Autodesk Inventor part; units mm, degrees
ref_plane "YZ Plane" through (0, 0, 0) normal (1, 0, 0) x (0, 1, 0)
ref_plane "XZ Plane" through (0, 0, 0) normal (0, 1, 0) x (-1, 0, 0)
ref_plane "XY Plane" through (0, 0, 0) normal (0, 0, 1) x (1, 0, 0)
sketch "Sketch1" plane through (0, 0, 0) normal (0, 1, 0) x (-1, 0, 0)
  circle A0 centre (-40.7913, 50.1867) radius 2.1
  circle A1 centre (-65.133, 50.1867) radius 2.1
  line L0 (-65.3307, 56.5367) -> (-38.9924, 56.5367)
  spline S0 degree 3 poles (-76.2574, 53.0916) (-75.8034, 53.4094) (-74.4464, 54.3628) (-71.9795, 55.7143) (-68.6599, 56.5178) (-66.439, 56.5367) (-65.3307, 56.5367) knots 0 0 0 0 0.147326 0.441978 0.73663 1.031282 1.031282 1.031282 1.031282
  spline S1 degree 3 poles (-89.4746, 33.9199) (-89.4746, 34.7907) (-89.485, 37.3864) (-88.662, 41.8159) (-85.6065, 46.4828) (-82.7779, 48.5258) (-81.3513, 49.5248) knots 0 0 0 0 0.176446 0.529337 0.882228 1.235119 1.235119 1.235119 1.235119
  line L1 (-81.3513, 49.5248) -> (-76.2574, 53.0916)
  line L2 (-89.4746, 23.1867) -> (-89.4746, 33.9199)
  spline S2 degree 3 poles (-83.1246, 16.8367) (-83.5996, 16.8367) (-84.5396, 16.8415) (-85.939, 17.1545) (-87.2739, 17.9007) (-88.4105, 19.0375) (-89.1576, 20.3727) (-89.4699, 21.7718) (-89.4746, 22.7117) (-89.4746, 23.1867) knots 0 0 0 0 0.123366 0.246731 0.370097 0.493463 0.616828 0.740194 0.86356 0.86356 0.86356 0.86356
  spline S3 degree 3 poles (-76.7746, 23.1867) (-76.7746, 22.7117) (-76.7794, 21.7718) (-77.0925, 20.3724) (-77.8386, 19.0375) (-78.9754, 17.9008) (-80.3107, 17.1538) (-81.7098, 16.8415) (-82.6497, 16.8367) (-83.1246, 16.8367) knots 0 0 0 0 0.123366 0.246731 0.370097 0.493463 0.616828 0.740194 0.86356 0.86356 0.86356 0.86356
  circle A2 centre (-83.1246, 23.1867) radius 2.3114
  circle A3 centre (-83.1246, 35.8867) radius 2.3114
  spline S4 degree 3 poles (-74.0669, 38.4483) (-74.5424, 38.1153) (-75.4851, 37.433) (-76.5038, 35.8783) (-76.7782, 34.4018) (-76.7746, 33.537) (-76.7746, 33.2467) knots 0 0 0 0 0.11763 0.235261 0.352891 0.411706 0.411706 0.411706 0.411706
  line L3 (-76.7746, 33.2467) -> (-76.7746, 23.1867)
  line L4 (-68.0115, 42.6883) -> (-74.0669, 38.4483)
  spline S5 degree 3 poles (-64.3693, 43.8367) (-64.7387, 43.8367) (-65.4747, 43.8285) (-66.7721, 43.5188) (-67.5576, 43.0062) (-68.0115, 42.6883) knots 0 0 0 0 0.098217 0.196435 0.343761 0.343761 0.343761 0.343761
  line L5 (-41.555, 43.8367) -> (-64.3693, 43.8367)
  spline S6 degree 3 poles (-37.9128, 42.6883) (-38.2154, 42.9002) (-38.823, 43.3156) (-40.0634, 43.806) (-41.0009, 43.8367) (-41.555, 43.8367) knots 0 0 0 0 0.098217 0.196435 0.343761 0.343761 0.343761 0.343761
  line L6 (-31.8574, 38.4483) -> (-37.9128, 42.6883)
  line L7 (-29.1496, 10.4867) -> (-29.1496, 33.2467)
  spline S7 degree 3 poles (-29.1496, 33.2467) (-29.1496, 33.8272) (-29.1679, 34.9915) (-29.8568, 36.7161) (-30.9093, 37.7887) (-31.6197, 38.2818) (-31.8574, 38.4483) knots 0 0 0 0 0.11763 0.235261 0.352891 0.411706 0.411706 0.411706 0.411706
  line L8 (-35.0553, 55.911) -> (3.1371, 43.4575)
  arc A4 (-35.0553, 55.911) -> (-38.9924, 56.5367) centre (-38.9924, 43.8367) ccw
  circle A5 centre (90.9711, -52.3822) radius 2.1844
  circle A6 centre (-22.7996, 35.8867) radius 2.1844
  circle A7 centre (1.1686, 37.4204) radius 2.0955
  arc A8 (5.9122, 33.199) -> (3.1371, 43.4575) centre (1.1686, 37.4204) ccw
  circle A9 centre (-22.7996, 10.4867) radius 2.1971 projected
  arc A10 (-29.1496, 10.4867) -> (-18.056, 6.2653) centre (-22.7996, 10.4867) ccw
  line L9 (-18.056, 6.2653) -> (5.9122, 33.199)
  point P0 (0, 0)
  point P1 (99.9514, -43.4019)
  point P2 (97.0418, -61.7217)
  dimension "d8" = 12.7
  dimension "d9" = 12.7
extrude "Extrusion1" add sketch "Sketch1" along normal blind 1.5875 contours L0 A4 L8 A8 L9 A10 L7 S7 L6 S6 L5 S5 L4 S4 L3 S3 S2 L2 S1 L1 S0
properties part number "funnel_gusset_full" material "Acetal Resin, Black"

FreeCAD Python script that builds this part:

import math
import FreeCAD as App
import Part
import Sketcher
from FreeCAD import Vector
Q = App.Units.Quantity

doc = App.newDocument("Part")
body = doc.addObject("PartDesign::Body", "Body")

# Sketch on XZ plane
sketch1 = body.newObject("Sketcher::SketchObject", "Sketch")
sketch1.AttachmentSupport = (doc.getObject("XZ_Plane"), [""])
sketch1.MapMode = "FlatFace"
sketch1.addGeometry(Part.LineSegment(Vector(38.9924, 56.5367, 0), Vector(65.3307, 56.5367, 0)), False)
sketch1.addGeometry(Part.BSplineCurve([Vector(76.2574, 53.0916, 0), Vector(75.8034, 53.4094, 0), Vector(74.4464, 54.3628, 0), Vector(71.9795, 55.7143, 0), Vector(68.6599, 56.5178, 0), Vector(66.439, 56.5367, 0), Vector(65.3307, 56.5367, 0)], [4, 1, 1, 1, 4], [0, 0.147326, 0.441978, 0.73663, 1.031282], False, 3, [1, 1, 1, 1, 1, 1, 1], False), False)
sketch1.addGeometry(Part.LineSegment(Vector(76.2574, 53.0916, 0), Vector(81.3513, 49.5248, 0)), False)
sketch1.addGeometry(Part.BSplineCurve([Vector(89.4746, 33.9199, 0), Vector(89.4746, 34.7907, 0), Vector(89.485, 37.3864, 0), Vector(88.662, 41.8159, 0), Vector(85.6065, 46.4828, 0), Vector(82.7779, 48.5258, 0), Vector(81.3513, 49.5248, 0)], [4, 1, 1, 1, 4], [0, 0.176446, 0.529337, 0.882228, 1.235119], False, 3, [1, 1, 1, 1, 1, 1, 1], False), False)
sketch1.addGeometry(Part.LineSegment(Vector(89.4746, 33.9199, 0), Vector(89.4746, 23.1867, 0)), False)
sketch1.addGeometry(Part.BSplineCurve([Vector(83.1246, 16.8367, 0), Vector(83.5996, 16.8367, 0), Vector(84.5396, 16.8415, 0), Vector(85.939, 17.1545, 0), Vector(87.2739, 17.9007, 0), Vector(88.4105, 19.0375, 0), Vector(89.1576, 20.3727, 0), Vector(89.4699, 21.7718, 0), Vector(89.4746, 22.7117, 0), Vector(89.4746, 23.1867, 0)], [4, 1, 1, 1, 1, 1, 1, 4], [0, 0.123366, 0.246731, 0.370097, 0.493463, 0.616828, 0.740194, 0.86356], False, 3, [1, 1, 1, 1, 1, 1, 1, 1, 1, 1], False), False)
sketch1.addGeometry(Part.BSplineCurve([Vector(76.7746, 23.1867, 0), Vector(76.7746, 22.7117, 0), Vector(76.7794, 21.7718, 0), Vector(77.0925, 20.3724, 0), Vector(77.8386, 19.0375, 0), Vector(78.9754, 17.9008, 0), Vector(80.3107, 17.1538, 0), Vector(81.7098, 16.8415, 0), Vector(82.6497, 16.8367, 0), Vector(83.1246, 16.8367, 0)], [4, 1, 1, 1, 1, 1, 1, 4], [0, 0.123366, 0.246731, 0.370097, 0.493463, 0.616828, 0.740194, 0.86356], False, 3, [1, 1, 1, 1, 1, 1, 1, 1, 1, 1], False), False)
sketch1.addGeometry(Part.LineSegment(Vector(76.7746, 23.1867, 0), Vector(76.7746, 33.2467, 0)), False)
sketch1.addGeometry(Part.BSplineCurve([Vector(74.0669, 38.4483, 0), Vector(74.5424, 38.1153, 0), Vector(75.4851, 37.433, 0), Vector(76.5038, 35.8783, 0), Vector(76.7782, 34.4018, 0), Vector(76.7746, 33.537, 0), Vector(76.7746, 33.2467, 0)], [4, 1, 1, 1, 4], [0, 0.11763, 0.235261, 0.352891, 0.411706], False, 3, [1, 1, 1, 1, 1, 1, 1], False), False)
sketch1.addGeometry(Part.LineSegment(Vector(74.0669, 38.4483, 0), Vector(68.0115, 42.6883, 0)), False)
sketch1.addGeometry(Part.BSplineCurve([Vector(64.3693, 43.8367, 0), Vector(64.7387, 43.8367, 0), Vector(65.4747, 43.8285, 0), Vector(66.7721, 43.5188, 0), Vector(67.5576, 43.0062, 0), Vector(68.0115, 42.6883, 0)], [4, 1, 1, 4], [0, 0.098217, 0.196435, 0.343761], False, 3, [1, 1, 1, 1, 1, 1], False), False)
sketch1.addGeometry(Part.LineSegment(Vector(64.3693, 43.8367, 0), Vector(41.555, 43.8367, 0)), False)
sketch1.addGeometry(Part.BSplineCurve([Vector(37.9128, 42.6883, 0), Vector(38.2154, 42.9002, 0), Vector(38.823, 43.3156, 0), Vector(40.0634, 43.806, 0), Vector(41.0009, 43.8367, 0), Vector(41.555, 43.8367, 0)], [4, 1, 1, 4], [0, 0.098217, 0.196435, 0.343761], False, 3, [1, 1, 1, 1, 1, 1], False), False)
sketch1.addGeometry(Part.LineSegment(Vector(37.9128, 42.6883, 0), Vector(31.8574, 38.4483, 0)), False)
sketch1.addGeometry(Part.BSplineCurve([Vector(29.1496, 33.2467, 0), Vector(29.1496, 33.8272, 0), Vector(29.1679, 34.9915, 0), Vector(29.8568, 36.7161, 0), Vector(30.9093, 37.7887, 0), Vector(31.6197, 38.2818, 0), Vector(31.8574, 38.4483, 0)], [4, 1, 1, 1, 4], [0, 0.11763, 0.235261, 0.352891, 0.411706], False, 3, [1, 1, 1, 1, 1, 1, 1], False), False)
sketch1.addGeometry(Part.LineSegment(Vector(29.1496, 33.2467, 0), Vector(29.1496, 10.4867, 0)), False)
sketch1.addGeometry(Part.ArcOfCircle(Part.Circle(Vector(22.7996, 10.4867, 0), Vector(0, 0, 1), 6.35), math.radians(-138.33364), math.radians(0)), False)
sketch1.addGeometry(Part.LineSegment(Vector(18.056, 6.2653, 0), Vector(-5.9122, 33.199, 0)), False)
sketch1.addGeometry(Part.ArcOfCircle(Part.Circle(Vector(-1.1686, 37.4204, 0), Vector(0, 0, 1), 6.349957), math.radians(108.059446), math.radians(221.66636)), False)
sketch1.addGeometry(Part.LineSegment(Vector(-3.1371, 43.4575, 0), Vector(35.0553, 55.911, 0)), False)
sketch1.addGeometry(Part.ArcOfCircle(Part.Circle(Vector(38.9924, 43.8367, 0), Vector(0, 0, 1), 12.699979), math.radians(90), math.radians(108.059735)), False)
sketch1.addGeometry(Part.Circle(Vector(83.1246, 23.1867, 0), Vector(0, 0, 1), 2.3114), False)
sketch1.addGeometry(Part.Circle(Vector(22.7996, 10.4867, 0), Vector(0, 0, 1), 2.1971), False)
sketch1.addGeometry(Part.Circle(Vector(83.1246, 35.8867, 0), Vector(0, 0, 1), 2.3114), False)
sketch1.addGeometry(Part.Circle(Vector(65.133, 50.1867, 0), Vector(0, 0, 1), 2.1), False)
sketch1.addGeometry(Part.Circle(Vector(22.7996, 35.8867, 0), Vector(0, 0, 1), 2.1844), False)
sketch1.addGeometry(Part.Circle(Vector(-1.1686, 37.4204, 0), Vector(0, 0, 1), 2.0955), False)
sketch1.addGeometry(Part.Circle(Vector(40.7913, 50.1867, 0), Vector(0, 0, 1), 2.1), False)
sketch1.addConstraint(Sketcher.Constraint("Block", 1))
sketch1.addConstraint(Sketcher.Constraint("Block", 3))
sketch1.addConstraint(Sketcher.Constraint("Block", 5))
sketch1.addConstraint(Sketcher.Constraint("Block", 6))
sketch1.addConstraint(Sketcher.Constraint("Block", 8))
sketch1.addConstraint(Sketcher.Constraint("Block", 10))
sketch1.addConstraint(Sketcher.Constraint("Block", 12))
sketch1.addConstraint(Sketcher.Constraint("Block", 14))
sketch1.addConstraint(Sketcher.Constraint("Coincident", 0, 2, 1, 2))
sketch1.addConstraint(Sketcher.Constraint("Coincident", 1, 1, 2, 1))
sketch1.addConstraint(Sketcher.Constraint("Coincident", 2, 2, 3, 2))
sketch1.addConstraint(Sketcher.Constraint("Coincident", 3, 1, 4, 1))
sketch1.addConstraint(Sketcher.Constraint("Coincident", 4, 2, 5, 2))
sketch1.addConstraint(Sketcher.Constraint("Coincident", 6, 1, 7, 1))
sketch1.addConstraint(Sketcher.Constraint("Coincident", 7, 2, 8, 2))
sketch1.addConstraint(Sketcher.Constraint("Coincident", 8, 1, 9, 1))
sketch1.addConstraint(Sketcher.Constraint("Coincident", 9, 2, 10, 2))
sketch1.addConstraint(Sketcher.Constraint("Coincident", 10, 1, 11, 1))
sketch1.addConstraint(Sketcher.Constraint("Coincident", 11, 2, 12, 2))
sketch1.addConstraint(Sketcher.Constraint("Coincident", 12, 1, 13, 1))
sketch1.addConstraint(Sketcher.Constraint("Coincident", 13, 2, 14, 2))
sketch1.addConstraint(Sketcher.Constraint("Coincident", 14, 1, 15, 1))
sketch1.addConstraint(Sketcher.Constraint("Coincident", 15, 2, 16, 2))
sketch1.addConstraint(Sketcher.Constraint("Coincident", 16, 1, 17, 1))
sketch1.addConstraint(Sketcher.Constraint("Coincident", 17, 2, 18, 2))
sketch1.addConstraint(Sketcher.Constraint("Coincident", 18, 1, 19, 1))
sketch1.addConstraint(Sketcher.Constraint("Coincident", 19, 2, 20, 2))
sketch1.addConstraint(Sketcher.Constraint("Coincident", 20, 1, 0, 1))
sketch1.addConstraint(Sketcher.Constraint("Horizontal", 0))
sketch1.addConstraint(Sketcher.Constraint("Vertical", 15))
sketch1.addConstraint(Sketcher.Constraint("Coincident", 22, 3, 16, 3))
sketch1.addConstraint(Sketcher.Constraint("Coincident", 26, 3, 18, 3))
sketch1.addConstraint(Sketcher.Constraint("Radius", 20, Q("0.5 in")))
sketch1.addConstraint(Sketcher.Constraint("Radius", 16, Q("0.25 in")))
sketch1.addConstraint(Sketcher.Constraint("Radius", 18, Q("0.25 in")))
sketch1.addConstraint(Sketcher.Constraint("DistanceY", 16, 3, 21, 3, Q("0.5 in")))
sketch1.addConstraint(Sketcher.Constraint("DistanceY", 21, 3, 23, 3, Q("0.5 in")))
sketch1.addConstraint(Sketcher.Constraint("DistanceY", 4, 2, 23, 3, Q("0.5 in")))
sketch1.addConstraint(Sketcher.Constraint("Diameter", 21, Q("0.182 in")))
sketch1.addConstraint(Sketcher.Constraint("Diameter", 22, Q("0.173 in")))
sketch1.addConstraint(Sketcher.Constraint("Diameter", 23, Q("0.182 in")))
sketch1.addConstraint(Sketcher.Constraint("Diameter", 25, Q("0.172 in")))
sketch1.addConstraint(Sketcher.Constraint("Diameter", 26, Q("0.165 in")))
sketch1.addConstraint(Sketcher.Constraint("DistanceY", 16, 3, 25, 3, Q("1 in")))
sketch1.addConstraint(Sketcher.Constraint("DistanceY", 15, 2, 25, 3, Q("1 in")))
sketch1.addConstraint(Sketcher.Constraint("Diameter", 24, 4.2))
sketch1.addConstraint(Sketcher.Constraint("Diameter", 27, 4.2))
sketch1.addConstraint(Sketcher.Constraint("DistanceY", 20, 3, 24, 3, Q("0.25 in")))
sketch1.addConstraint(Sketcher.Constraint("DistanceY", 20, 3, 27, 3, Q("0.25 in")))
sketch1.addConstraint(Sketcher.Constraint("DistanceX", 21, 3, 4, 2, Q("0.25 in")))
sketch1.addConstraint(Sketcher.Constraint("DistanceX", 23, 3, 4, 2, Q("0.25 in")))
sketch1.addConstraint(Sketcher.Constraint("DistanceX", 25, 3, 15, 2, Q("0.25 in")))
sketch1.addConstraint(Sketcher.Constraint("DistanceX", 18, 3, -1, 1, Q("0.046 in")))
sketch1.addConstraint(Sketcher.Constraint("DistanceX", 19, 2, 20, 3, Q("0.155 in")))
sketch1.addConstraint(Sketcher.Constraint("DistanceX", 19, 2, 20, 1, Q("0.155 in")))
sketch1.addConstraint(Sketcher.Constraint("DistanceX", 0, 1, 0, 2, 26.3383))
sketch1.addConstraint(Sketcher.Constraint("DistanceX", -1, 1, 24, 3, Q("2.5643 in")))
sketch1.addConstraint(Sketcher.Constraint("DistanceX", 18, 1, -1, 1, Q("0.1235 in")))
sketch1.addConstraint(Sketcher.Constraint("DistanceY", 18, 3, 20, 3, Q("0.2526 in")))
sketch1.addConstraint(Sketcher.Constraint("DistanceY", 16, 1, 16, 3, Q("0.1662 in")))
sketch1.addConstraint(Sketcher.Constraint("DistanceY", 17, 2, 18, 3, Q("0.1662 in")))
sketch1.addConstraint(Sketcher.Constraint("DistanceX", -1, 1, 27, 3, 40.7913))
pad1 = body.newObject("PartDesign::Pad", "Pad")
pad1.Profile = sketch1
pad1.Length = Q("0.0625 in")
pad1.Reversed = True

doc.recompute()
